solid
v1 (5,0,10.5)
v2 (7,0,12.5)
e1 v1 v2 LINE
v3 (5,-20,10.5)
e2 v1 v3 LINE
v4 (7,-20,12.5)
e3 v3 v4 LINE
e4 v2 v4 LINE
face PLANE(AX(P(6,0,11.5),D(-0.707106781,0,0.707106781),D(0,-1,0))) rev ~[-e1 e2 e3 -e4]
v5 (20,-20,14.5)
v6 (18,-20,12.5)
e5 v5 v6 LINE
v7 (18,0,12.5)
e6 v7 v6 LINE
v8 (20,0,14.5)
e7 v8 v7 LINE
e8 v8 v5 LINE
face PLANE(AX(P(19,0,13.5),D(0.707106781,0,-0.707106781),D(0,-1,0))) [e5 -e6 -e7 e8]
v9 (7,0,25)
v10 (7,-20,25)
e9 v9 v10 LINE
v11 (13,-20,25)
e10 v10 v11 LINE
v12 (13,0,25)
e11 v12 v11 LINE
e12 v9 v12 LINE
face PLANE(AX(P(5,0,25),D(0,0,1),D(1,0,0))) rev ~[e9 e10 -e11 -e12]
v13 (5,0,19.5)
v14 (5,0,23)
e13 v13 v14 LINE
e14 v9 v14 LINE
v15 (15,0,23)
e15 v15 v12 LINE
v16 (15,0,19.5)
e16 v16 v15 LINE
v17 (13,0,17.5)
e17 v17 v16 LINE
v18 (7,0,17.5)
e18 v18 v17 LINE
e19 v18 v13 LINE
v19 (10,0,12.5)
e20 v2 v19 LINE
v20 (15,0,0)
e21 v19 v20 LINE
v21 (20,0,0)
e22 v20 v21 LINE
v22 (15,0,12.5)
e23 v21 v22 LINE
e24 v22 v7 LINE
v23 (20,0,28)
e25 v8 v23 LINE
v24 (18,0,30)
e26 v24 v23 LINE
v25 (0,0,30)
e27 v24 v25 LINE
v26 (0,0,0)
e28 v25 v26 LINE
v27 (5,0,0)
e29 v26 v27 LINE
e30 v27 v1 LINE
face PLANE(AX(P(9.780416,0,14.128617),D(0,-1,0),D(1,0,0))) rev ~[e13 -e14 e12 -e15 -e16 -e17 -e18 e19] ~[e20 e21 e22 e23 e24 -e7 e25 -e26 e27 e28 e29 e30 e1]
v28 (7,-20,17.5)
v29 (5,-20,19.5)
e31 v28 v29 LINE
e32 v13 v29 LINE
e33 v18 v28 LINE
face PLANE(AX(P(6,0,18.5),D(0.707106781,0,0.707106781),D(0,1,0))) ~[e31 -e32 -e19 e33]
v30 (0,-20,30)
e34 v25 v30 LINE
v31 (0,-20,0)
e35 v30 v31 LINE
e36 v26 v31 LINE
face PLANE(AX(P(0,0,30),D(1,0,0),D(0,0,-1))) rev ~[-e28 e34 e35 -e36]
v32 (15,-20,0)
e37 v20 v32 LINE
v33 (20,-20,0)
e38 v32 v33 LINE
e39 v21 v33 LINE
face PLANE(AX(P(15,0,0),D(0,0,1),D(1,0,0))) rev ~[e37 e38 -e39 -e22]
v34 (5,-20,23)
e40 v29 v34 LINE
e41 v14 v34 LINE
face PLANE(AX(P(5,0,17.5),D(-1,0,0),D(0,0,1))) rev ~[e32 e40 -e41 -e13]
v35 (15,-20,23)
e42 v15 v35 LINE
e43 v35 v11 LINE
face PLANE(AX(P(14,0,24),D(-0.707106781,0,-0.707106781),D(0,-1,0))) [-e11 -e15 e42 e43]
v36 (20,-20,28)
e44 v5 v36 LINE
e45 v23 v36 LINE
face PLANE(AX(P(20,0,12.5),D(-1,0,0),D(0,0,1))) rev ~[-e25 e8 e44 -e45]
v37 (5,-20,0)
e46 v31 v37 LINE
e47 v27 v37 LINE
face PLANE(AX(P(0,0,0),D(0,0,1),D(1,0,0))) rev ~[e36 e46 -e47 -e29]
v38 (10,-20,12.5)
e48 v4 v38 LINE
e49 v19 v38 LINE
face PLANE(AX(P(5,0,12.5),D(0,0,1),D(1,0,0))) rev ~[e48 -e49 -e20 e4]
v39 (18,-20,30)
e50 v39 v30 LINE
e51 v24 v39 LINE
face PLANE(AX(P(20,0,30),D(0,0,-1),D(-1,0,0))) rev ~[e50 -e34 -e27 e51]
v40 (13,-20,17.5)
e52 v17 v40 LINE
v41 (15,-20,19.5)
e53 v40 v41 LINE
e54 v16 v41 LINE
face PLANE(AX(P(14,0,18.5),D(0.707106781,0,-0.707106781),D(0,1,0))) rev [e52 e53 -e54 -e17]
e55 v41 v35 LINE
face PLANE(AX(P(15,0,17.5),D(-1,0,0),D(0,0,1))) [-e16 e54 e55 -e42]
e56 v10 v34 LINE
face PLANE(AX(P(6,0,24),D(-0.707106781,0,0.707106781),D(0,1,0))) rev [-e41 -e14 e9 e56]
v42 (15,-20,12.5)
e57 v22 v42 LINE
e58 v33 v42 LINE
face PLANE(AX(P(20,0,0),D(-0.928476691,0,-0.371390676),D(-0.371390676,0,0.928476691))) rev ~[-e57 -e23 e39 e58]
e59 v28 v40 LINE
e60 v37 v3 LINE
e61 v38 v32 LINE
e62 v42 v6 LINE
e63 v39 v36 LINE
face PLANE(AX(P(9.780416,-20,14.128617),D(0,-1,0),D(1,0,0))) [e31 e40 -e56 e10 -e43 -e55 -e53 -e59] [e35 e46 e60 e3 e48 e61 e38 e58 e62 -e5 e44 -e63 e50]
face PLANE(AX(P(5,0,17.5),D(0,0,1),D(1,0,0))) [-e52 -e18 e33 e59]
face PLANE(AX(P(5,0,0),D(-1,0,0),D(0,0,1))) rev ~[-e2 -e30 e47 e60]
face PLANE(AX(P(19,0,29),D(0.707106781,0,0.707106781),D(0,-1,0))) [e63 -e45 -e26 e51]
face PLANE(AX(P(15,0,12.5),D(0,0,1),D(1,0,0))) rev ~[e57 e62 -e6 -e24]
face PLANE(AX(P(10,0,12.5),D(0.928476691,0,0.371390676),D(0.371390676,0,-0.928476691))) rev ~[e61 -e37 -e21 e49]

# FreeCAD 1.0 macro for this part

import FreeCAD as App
import Part
import Sketcher

V = App.Vector
Q = App.Units.Quantity


def edges_at(feature, points):
    """Names of the edges that pass closest to the given points."""
    edges = feature.Shape.Edges
    near = lambda p: min(range(len(edges)), key=lambda i: edges[i].distToShape(Part.Vertex(*p))[0])
    return sorted({f"Edge{near(p) + 1}" for p in points})

doc = App.newDocument("Part")
params = doc.addObject("Spreadsheet::Sheet", "Params")
for row, (alias, value) in enumerate([
    ("sketch1_width", "5 mm"),
    ("sketch1_height", "30 mm"),
    ("sketch1_height2", "12.5 mm"),
    ("sketch1_height3", "7.5 mm"),
    ("pad1_length", "20 mm"),
    ("chamfer_size", "2 mm"),
], start=1):
    params.set(f"A{row}", alias)
    params.set(f"B{row}", "=" + value)
    params.setAlias(f"B{row}", alias)

body = doc.addObject("PartDesign::Body", "Body")

sketch1 = body.newObject("Sketcher::SketchObject", "Sketch")
sketch1.AttachmentSupport = (doc.getObject("XZ_Plane"), [""])
sketch1.MapMode = "FlatFace"
sketch1.addGeometry([
    Part.LineSegment(V(0, 30, 0), V(0, 0, 0)),
    Part.LineSegment(V(0, 0, 0), V(5, 0, 0)),
    Part.LineSegment(V(5, 0, 0), V(5, 12.5, 0)),
    Part.LineSegment(V(5, 12.5, 0), V(10, 12.5, 0)),
    Part.LineSegment(V(10, 12.5, 0), V(15, 0, 0)),
    Part.LineSegment(V(15, 0, 0), V(20, 0, 0)),
    Part.LineSegment(V(20, 0, 0), V(15, 12.5, 0)),
    Part.LineSegment(V(15, 12.5, 0), V(20, 12.5, 0)),
    Part.LineSegment(V(20, 12.5, 0), V(20, 30, 0)),
    Part.LineSegment(V(20, 30, 0), V(0, 30, 0)),
    Part.LineSegment(V(15, 17.5, 0), V(5, 17.5, 0)),
    Part.LineSegment(V(5, 17.5, 0), V(5, 25, 0)),
    Part.LineSegment(V(5, 25, 0), V(15, 25, 0)),
    Part.LineSegment(V(15, 25, 0), V(15, 17.5, 0)),
], False)
sketch1.addConstraint([
    Sketcher.Constraint("Coincident", 0, 2, 1, 1),
    Sketcher.Constraint("Coincident", 1, 2, 2, 1),
    Sketcher.Constraint("Coincident", 2, 2, 3, 1),
    Sketcher.Constraint("Coincident", 3, 2, 4, 1),
    Sketcher.Constraint("Coincident", 4, 2, 5, 1),
    Sketcher.Constraint("Coincident", 5, 2, 6, 1),
    Sketcher.Constraint("Coincident", 6, 2, 7, 1),
    Sketcher.Constraint("Coincident", 7, 2, 8, 1),
    Sketcher.Constraint("Coincident", 8, 2, 9, 1),
    Sketcher.Constraint("Coincident", 9, 2, 0, 1),
    Sketcher.Constraint("Coincident", 10, 2, 11, 1),
    Sketcher.Constraint("Coincident", 11, 2, 12, 1),
    Sketcher.Constraint("Coincident", 12, 2, 13, 1),
    Sketcher.Constraint("Coincident", 13, 2, 10, 1),
    Sketcher.Constraint("Vertical", 0),
    Sketcher.Constraint("Horizontal", 1),
    Sketcher.Constraint("Vertical", 2),
    Sketcher.Constraint("Horizontal", 3),
    Sketcher.Constraint("Horizontal", 5),
    Sketcher.Constraint("Horizontal", 7),
    Sketcher.Constraint("Vertical", 8),
    Sketcher.Constraint("Horizontal", 9),
    Sketcher.Constraint("Horizontal", 10),
    Sketcher.Constraint("Vertical", 11),
    Sketcher.Constraint("Horizontal", 12),
    Sketcher.Constraint("Vertical", 13),
    Sketcher.Constraint("Coincident", 0, 2, -1, 1),
    Sketcher.Constraint("PointOnObject", 4, 2, -1),
    Sketcher.Constraint("Parallel", 4, 6),
    Sketcher.Constraint("Horizontal", 3, 2, 6, 2),
    Sketcher.Constraint("Vertical", 4, 2, 6, 2),
    Sketcher.Constraint("Vertical", 5, 2, 7, 2),
    Sketcher.Constraint("Vertical", 2, 2, 10, 2),
    Sketcher.Constraint("Vertical", 6, 2, 12, 2),
    Sketcher.Constraint("Equal", 1, 3),
    Sketcher.Constraint("Equal", 3, 5),
    Sketcher.Constraint("DistanceX", 1, 1, 1, 2, Q("5 mm")),
    Sketcher.Constraint("DistanceY", 0, 2, 0, 1, Q("30 mm")),
    Sketcher.Constraint("DistanceY", 2, 1, 2, 2, Q("12.5 mm")),
    Sketcher.Constraint("DistanceY", 11, 1, 11, 2, Q("7.5 mm")),
    Sketcher.Constraint("DistanceY", -1, 1, 11, 2, Q("25 mm")),
])
sketch1.setExpression("Constraints[36]", "Params.sketch1_width")
sketch1.setExpression("Constraints[37]", "Params.sketch1_height")
sketch1.setExpression("Constraints[38]", "Params.sketch1_height2")
sketch1.setExpression("Constraints[39]", "Params.sketch1_height3")
pad1 = body.newObject("PartDesign::Pad", "Pad")
pad1.Profile = sketch1
pad1.setExpression("Length", "Params.pad1_length")
doc.recompute()

chamfer = body.newObject("PartDesign::Chamfer", "Chamfer")
chamfer.Base = (pad1, edges_at(pad1, [
    (20, -10, 30),
    (20, -10, 12.5),
    (5, -10, 17.5),
    (5, -10, 25),
    (5, -10, 12.5),
    (15, -10, 25),
    (15, -10, 17.5),
]))
chamfer.setExpression("Size", "Params.chamfer_size")

doc.recompute()
